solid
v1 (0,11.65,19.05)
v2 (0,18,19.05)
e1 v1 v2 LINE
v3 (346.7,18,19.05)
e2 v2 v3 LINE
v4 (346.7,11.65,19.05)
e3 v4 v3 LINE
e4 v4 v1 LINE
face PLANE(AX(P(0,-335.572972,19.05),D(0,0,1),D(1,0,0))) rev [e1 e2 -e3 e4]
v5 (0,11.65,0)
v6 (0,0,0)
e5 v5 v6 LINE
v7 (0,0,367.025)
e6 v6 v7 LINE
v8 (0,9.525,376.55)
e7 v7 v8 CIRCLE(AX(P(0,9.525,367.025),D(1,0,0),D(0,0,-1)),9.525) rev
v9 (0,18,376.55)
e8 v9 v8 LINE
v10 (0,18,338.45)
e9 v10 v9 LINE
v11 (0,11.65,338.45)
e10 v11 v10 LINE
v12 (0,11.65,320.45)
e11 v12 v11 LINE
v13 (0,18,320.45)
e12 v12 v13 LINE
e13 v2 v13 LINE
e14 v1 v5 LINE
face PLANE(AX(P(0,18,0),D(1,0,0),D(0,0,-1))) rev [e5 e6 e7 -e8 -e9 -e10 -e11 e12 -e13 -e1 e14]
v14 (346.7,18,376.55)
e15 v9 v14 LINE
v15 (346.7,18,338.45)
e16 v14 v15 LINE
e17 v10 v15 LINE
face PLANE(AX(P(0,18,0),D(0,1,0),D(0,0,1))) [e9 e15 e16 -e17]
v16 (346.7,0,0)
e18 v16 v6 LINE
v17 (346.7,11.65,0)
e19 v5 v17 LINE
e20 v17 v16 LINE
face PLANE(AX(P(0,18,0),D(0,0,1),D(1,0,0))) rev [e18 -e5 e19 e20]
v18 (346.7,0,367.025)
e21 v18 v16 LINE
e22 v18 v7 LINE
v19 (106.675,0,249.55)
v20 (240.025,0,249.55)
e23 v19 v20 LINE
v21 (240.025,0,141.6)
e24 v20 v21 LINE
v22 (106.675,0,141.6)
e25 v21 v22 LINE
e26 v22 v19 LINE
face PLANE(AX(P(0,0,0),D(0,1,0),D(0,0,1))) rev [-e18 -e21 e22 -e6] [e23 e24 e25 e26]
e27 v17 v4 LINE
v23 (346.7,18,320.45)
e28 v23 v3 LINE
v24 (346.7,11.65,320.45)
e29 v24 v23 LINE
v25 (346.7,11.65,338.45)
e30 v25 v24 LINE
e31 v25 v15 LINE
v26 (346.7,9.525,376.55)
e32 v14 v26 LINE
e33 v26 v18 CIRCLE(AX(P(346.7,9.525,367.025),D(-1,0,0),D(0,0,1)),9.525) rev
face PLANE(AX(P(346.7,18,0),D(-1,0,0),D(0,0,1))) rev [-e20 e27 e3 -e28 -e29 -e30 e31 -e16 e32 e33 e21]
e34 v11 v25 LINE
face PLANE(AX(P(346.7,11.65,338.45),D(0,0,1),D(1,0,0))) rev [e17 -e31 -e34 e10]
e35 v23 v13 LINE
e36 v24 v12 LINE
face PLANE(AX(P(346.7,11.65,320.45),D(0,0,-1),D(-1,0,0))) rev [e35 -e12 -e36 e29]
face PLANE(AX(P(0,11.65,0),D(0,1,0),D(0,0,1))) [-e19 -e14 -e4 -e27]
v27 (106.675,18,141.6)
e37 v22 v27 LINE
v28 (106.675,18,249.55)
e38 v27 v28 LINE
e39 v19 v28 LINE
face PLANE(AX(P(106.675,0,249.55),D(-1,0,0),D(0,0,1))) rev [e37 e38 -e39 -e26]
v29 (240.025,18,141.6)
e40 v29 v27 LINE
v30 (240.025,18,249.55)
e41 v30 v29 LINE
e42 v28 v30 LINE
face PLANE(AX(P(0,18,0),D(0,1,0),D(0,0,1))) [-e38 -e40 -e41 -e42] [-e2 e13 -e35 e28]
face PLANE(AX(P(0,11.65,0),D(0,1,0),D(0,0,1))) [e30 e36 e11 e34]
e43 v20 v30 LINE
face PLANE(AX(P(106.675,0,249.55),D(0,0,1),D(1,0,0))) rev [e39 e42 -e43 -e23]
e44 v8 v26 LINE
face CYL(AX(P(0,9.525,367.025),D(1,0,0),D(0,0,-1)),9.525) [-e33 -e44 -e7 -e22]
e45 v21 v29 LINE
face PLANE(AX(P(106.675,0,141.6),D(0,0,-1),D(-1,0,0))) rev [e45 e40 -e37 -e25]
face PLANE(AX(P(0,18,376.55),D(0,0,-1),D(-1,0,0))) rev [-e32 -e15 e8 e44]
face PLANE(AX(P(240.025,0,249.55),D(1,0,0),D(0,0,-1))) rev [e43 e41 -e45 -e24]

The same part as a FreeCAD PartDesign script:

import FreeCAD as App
import Part
import Sketcher
Q = App.Units.Quantity


def edges_at(feature, points):
    """Names of the edges that pass closest to the given points."""
    edges = feature.Shape.Edges
    near = lambda p: min(range(len(edges)), key=lambda i: edges[i].distToShape(Part.Vertex(*p))[0])
    return sorted({f"Edge{near(p) + 1}" for p in points})

doc = App.newDocument("Part")
body = doc.addObject("PartDesign::Body", "Body")

# Sketch on XZ plane
sketch1 = body.newObject("Sketcher::SketchObject", "Sketch")
sketch1.AttachmentSupport = (doc.getObject("XZ_Plane"), [""])
sketch1.MapMode = "FlatFace"
sketch1.addGeometry(Part.LineSegment(App.Vector(0, 0, 0), App.Vector(0, 377, 0)), False)
sketch1.addGeometry(Part.LineSegment(App.Vector(0, 377, 0), App.Vector(347, 377, 0)), False)
sketch1.addGeometry(Part.LineSegment(App.Vector(347, 377, 0), App.Vector(347, 0, 0)), False)
sketch1.addGeometry(Part.LineSegment(App.Vector(347, 0, 0), App.Vector(0, 0, 0)), False)
sketch1.addConstraint(Sketcher.Constraint("Coincident", 0, 2, 1, 1))
sketch1.addConstraint(Sketcher.Constraint("Coincident", 1, 2, 2, 1))
sketch1.addConstraint(Sketcher.Constraint("Coincident", 2, 2, 3, 1))
sketch1.addConstraint(Sketcher.Constraint("Coincident", 3, 2, 0, 1))
sketch1.addConstraint(Sketcher.Constraint("Vertical", 0))
sketch1.addConstraint(Sketcher.Constraint("Horizontal", 1))
sketch1.addConstraint(Sketcher.Constraint("Vertical", 2))
sketch1.addConstraint(Sketcher.Constraint("Horizontal", 3))
sketch1.addConstraint(Sketcher.Constraint("Coincident", 3, 2, -1, 1))
sketch1.addConstraint(Sketcher.Constraint("DistanceX", 1, 1, 1, 2, Q("346.7 mm")))
sketch1.addConstraint(Sketcher.Constraint("DistanceY", 0, 1, 0, 2, Q("376.55 mm")))
pad1 = body.newObject("PartDesign::Pad", "Pad")
pad1.Profile = sketch1
pad1.Length = 18
pad1.Reversed = True

# Sketch on XZ plane
sketch2 = body.newObject("Sketcher::SketchObject", "Sketch001")
sketch2.AttachmentSupport = (doc.getObject("XZ_Plane"), [""])
sketch2.MapMode = "FlatFace"
sketch2.AttachmentOffset = App.Placement(App.Vector(0, 0, -18), App.Rotation())
sketch2.addGeometry(Part.LineSegment(App.Vector(0, 320, 0), App.Vector(0, 338, 0)), False)
sketch2.addGeometry(Part.LineSegment(App.Vector(0, 338, 0), App.Vector(347, 338, 0)), False)
sketch2.addGeometry(Part.LineSegment(App.Vector(347, 338, 0), App.Vector(347, 320, 0)), False)
sketch2.addGeometry(Part.LineSegment(App.Vector(347, 320, 0), App.Vector(0, 320, 0)), False)
sketch2.addConstraint(Sketcher.Constraint("Coincident", 0, 2, 1, 1))
sketch2.addConstraint(Sketcher.Constraint("Coincident", 1, 2, 2, 1))
sketch2.addConstraint(Sketcher.Constraint("Coincident", 2, 2, 3, 1))
sketch2.addConstraint(Sketcher.Constraint("Coincident", 3, 2, 0, 1))
sketch2.addConstraint(Sketcher.Constraint("Vertical", 0))
sketch2.addConstraint(Sketcher.Constraint("Horizontal", 1))
sketch2.addConstraint(Sketcher.Constraint("Vertical", 2))
sketch2.addConstraint(Sketcher.Constraint("Horizontal", 3))
sketch2.addConstraint(Sketcher.Constraint("PointOnObject", 0, 2, -2))
sketch2.addConstraint(Sketcher.Constraint("DistanceX", 1, 1, 1, 2, Q("346.7 mm")))
sketch2.addConstraint(Sketcher.Constraint("DistanceY", 0, 1, 0, 2, Q("18 mm")))
sketch2.addConstraint(Sketcher.Constraint("DistanceY", -1, 1, 0, 2, Q("338.45 mm")))
pocket1 = body.newObject("PartDesign::Pocket", "Pocket")
pocket1.Profile = sketch2
pocket1.Length = Q("0.25 in")
pocket1.Reversed = True

# Sketch on XZ plane
sketch3 = body.newObject("Sketcher::SketchObject", "Sketch002")
sketch3.AttachmentSupport = (doc.getObject("XZ_Plane"), [""])
sketch3.MapMode = "FlatFace"
sketch3.AttachmentOffset = App.Placement(App.Vector(0, 0, -18), App.Rotation())
sketch3.addGeometry(Part.LineSegment(App.Vector(107, 142, 0), App.Vector(107, 250, 0)), False)
sketch3.addGeometry(Part.LineSegment(App.Vector(107, 250, 0), App.Vector(240, 250, 0)), False)
sketch3.addGeometry(Part.LineSegment(App.Vector(240, 250, 0), App.Vector(240, 142, 0)), False)
sketch3.addGeometry(Part.LineSegment(App.Vector(240, 142, 0), App.Vector(107, 142, 0)), False)
sketch3.addConstraint(Sketcher.Constraint("Coincident", 0, 2, 1, 1))
sketch3.addConstraint(Sketcher.Constraint("Coincident", 1, 2, 2, 1))
sketch3.addConstraint(Sketcher.Constraint("Coincident", 2, 2, 3, 1))
sketch3.addConstraint(Sketcher.Constraint("Coincident", 3, 2, 0, 1))
sketch3.addConstraint(Sketcher.Constraint("Vertical", 0))
sketch3.addConstraint(Sketcher.Constraint("Horizontal", 1))
sketch3.addConstraint(Sketcher.Constraint("Vertical", 2))
sketch3.addConstraint(Sketcher.Constraint("Horizontal", 3))
sketch3.addConstraint(Sketcher.Constraint("DistanceX", 1, 1, 1, 2, Q("5.25 in")))
sketch3.addConstraint(Sketcher.Constraint("DistanceY", 0, 1, 0, 2, Q("4.25 in")))
sketch3.addConstraint(Sketcher.Constraint("DistanceX", -1, 1, 0, 2, Q("106.675 mm")))
sketch3.addConstraint(Sketcher.Constraint("DistanceY", -1, 1, 0, 2, Q("249.55 mm")))
pocket2 = body.newObject("PartDesign::Pocket", "Pocket001")
pocket2.Profile = sketch3
pocket2.Type = "ThroughAll"
pocket2.Reversed = True
doc.recompute()

fillet = body.newObject("PartDesign::Fillet", "Fillet")
fillet.Base = (pocket2, edges_at(pocket2, [(173.35, 0, 376.55)]))
fillet.Radius = Q("0.375 in")

# Sketch on XZ plane
sketch4 = body.newObject("Sketcher::SketchObject", "Sketch003")
sketch4.AttachmentSupport = (doc.getObject("XZ_Plane"), [""])
sketch4.MapMode = "FlatFace"
sketch4.AttachmentOffset = App.Placement(App.Vector(0, 0, -18), App.Rotation())
sketch4.addGeometry(Part.LineSegment(App.Vector(0, 0, 0), App.Vector(0, 19, 0)), False)
sketch4.addGeometry(Part.LineSegment(App.Vector(0, 19, 0), App.Vector(347, 19, 0)), False)
sketch4.addGeometry(Part.LineSegment(App.Vector(347, 19, 0), App.Vector(347, 0, 0)), False)
sketch4.addGeometry(Part.LineSegment(App.Vector(347, 0, 0), App.Vector(0, 0, 0)), False)
sketch4.addConstraint(Sketcher.Constraint("Coincident", 0, 2, 1, 1))
sketch4.addConstraint(Sketcher.Constraint("Coincident", 1, 2, 2, 1))
sketch4.addConstraint(Sketcher.Constraint("Coincident", 2, 2, 3, 1))
sketch4.addConstraint(Sketcher.Constraint("Coincident", 3, 2, 0, 1))
sketch4.addConstraint(Sketcher.Constraint("Vertical", 0))
sketch4.addConstraint(Sketcher.Constraint("Horizontal", 1))
sketch4.addConstraint(Sketcher.Constraint("Vertical", 2))
sketch4.addConstraint(Sketcher.Constraint("Horizontal", 3))
sketch4.addConstraint(Sketcher.Constraint("Coincident", 3, 2, -1, 1))
sketch4.addConstraint(Sketcher.Constraint("DistanceY", 0, 1, 0, 2, Q("0.75 in")))
sketch4.addConstraint(Sketcher.Constraint("DistanceX", 1, 1, 1, 2, Q("346.7 mm")))
pocket3 = body.newObject("PartDesign::Pocket", "Pocket002")
pocket3.Profile = sketch4
pocket3.Length = Q("0.25 in")
pocket3.Reversed = True

doc.recompute()
